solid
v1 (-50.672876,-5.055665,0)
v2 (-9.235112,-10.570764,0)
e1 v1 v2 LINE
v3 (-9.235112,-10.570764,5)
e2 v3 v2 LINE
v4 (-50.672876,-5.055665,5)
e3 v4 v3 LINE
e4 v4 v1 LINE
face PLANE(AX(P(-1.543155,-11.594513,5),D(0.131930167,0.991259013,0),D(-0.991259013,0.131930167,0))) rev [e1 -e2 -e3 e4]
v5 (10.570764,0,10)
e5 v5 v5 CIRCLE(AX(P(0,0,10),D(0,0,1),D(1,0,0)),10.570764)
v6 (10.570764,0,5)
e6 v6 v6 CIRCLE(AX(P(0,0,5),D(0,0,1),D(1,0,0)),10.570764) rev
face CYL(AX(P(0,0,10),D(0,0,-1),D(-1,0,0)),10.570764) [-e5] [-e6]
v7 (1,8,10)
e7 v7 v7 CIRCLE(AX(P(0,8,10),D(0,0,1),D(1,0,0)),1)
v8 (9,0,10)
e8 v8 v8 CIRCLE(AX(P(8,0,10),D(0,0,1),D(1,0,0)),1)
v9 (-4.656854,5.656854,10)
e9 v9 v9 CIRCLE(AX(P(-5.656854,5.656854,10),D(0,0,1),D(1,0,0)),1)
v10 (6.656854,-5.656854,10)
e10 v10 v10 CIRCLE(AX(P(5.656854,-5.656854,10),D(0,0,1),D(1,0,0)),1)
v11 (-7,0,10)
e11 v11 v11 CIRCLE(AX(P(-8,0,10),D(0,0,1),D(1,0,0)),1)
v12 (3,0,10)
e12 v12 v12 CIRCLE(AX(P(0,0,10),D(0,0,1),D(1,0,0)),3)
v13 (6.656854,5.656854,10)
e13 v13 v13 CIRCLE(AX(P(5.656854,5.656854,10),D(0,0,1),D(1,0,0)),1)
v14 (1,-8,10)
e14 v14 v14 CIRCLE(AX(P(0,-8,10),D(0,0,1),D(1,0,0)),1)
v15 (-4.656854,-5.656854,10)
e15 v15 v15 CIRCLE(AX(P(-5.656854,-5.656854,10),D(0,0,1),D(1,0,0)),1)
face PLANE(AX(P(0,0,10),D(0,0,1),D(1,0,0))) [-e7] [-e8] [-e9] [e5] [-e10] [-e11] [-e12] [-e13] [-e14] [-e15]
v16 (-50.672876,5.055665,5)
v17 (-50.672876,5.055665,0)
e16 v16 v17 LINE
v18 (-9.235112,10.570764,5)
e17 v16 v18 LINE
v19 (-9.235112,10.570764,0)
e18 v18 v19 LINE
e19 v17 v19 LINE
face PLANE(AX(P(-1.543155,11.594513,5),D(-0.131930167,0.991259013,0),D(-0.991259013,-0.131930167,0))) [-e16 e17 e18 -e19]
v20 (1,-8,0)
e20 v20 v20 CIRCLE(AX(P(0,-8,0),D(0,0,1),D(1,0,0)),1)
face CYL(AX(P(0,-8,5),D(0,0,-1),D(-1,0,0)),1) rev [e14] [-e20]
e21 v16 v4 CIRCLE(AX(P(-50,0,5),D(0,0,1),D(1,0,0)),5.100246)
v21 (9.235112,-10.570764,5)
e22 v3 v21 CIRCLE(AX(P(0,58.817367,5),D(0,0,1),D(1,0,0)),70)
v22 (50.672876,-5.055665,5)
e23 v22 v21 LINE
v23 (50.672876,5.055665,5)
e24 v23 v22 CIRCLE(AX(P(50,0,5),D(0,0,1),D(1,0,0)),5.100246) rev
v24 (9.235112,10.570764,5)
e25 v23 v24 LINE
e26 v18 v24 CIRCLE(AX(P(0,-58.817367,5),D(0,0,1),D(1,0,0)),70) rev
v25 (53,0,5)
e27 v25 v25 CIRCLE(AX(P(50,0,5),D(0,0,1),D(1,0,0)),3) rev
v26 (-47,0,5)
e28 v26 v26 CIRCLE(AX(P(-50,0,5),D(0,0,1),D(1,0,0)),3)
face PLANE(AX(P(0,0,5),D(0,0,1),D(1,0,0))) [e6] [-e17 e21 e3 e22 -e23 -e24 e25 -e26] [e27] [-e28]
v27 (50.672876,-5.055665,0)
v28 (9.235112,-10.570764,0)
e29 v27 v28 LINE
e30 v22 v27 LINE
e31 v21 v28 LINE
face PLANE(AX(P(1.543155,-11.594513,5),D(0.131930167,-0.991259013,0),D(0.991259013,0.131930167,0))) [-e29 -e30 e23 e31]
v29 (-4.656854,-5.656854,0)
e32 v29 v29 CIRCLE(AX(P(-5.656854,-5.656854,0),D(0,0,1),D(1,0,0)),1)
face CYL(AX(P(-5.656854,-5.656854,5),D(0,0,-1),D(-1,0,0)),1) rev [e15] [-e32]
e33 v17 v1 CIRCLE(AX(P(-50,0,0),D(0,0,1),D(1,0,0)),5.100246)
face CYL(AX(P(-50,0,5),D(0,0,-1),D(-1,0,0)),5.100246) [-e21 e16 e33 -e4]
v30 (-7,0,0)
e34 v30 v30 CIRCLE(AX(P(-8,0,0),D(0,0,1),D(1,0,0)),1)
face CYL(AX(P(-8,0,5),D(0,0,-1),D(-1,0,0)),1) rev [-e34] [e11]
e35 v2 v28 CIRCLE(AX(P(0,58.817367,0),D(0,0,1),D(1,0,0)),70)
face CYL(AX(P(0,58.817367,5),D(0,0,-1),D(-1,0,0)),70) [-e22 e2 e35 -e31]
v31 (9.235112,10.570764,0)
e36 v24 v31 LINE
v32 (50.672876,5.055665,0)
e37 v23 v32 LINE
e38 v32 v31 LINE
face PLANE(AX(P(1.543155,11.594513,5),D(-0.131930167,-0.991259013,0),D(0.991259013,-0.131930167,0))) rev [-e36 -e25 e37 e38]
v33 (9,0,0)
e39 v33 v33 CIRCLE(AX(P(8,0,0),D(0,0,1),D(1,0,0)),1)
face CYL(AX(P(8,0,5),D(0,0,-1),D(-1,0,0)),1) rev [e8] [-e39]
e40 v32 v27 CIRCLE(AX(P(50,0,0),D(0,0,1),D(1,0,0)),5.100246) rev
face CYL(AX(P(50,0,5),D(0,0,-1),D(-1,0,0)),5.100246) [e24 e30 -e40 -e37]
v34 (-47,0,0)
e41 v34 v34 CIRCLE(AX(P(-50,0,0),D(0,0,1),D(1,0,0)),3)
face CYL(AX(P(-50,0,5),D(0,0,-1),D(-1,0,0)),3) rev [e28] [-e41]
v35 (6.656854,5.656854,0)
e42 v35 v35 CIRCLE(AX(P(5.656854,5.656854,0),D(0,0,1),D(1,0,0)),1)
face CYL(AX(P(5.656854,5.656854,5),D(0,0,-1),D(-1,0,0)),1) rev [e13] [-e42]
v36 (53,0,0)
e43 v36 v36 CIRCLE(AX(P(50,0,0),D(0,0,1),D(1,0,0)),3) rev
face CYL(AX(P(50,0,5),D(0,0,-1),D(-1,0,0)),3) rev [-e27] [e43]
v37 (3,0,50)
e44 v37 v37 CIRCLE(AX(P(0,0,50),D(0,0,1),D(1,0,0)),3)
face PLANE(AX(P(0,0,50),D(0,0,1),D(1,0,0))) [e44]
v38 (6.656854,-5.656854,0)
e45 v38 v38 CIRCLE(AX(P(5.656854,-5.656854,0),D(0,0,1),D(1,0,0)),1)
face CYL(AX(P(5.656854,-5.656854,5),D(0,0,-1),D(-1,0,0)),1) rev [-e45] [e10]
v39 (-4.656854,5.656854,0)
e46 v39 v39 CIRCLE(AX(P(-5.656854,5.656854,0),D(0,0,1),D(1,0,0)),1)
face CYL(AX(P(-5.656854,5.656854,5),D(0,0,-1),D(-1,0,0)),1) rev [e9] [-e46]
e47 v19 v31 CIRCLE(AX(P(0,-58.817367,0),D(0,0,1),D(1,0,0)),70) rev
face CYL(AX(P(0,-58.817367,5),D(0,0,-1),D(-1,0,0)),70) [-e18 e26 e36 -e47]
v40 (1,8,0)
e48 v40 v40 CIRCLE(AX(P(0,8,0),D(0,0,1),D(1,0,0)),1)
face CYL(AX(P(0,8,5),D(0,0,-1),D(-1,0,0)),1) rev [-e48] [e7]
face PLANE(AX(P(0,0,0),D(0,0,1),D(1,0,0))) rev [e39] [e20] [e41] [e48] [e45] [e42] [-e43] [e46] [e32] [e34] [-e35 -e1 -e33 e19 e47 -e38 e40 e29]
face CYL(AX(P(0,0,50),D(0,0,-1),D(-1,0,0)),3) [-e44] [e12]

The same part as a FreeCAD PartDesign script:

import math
import FreeCAD as App
import Part
import Sketcher
from FreeCAD import Vector
Q = App.Units.Quantity

doc = App.newDocument("Part")
body = doc.addObject("PartDesign::Body", "Body")

# Sketch on XY plane
sketch1 = doc.addObject("Sketcher::SketchObject", "Sketch")
body.addObject(sketch1)
sketch1.AttachmentSupport = (doc.XY_Plane, [""])
sketch1.MapMode = "FlatFace"
sketch1.addGeometry(Part.LineSegment(Vector(-9.2, 10.6, 0), Vector(-50.7, 5.1, 0)), False)
sketch1.addGeometry(Part.ArcOfCircle(Part.Circle(Vector(-50, 0, 0), Vector(0, 0, 1), 5.1), math.radians(98), math.radians(262)), False)
sketch1.addGeometry(Part.LineSegment(Vector(-50.7, -5.1, 0), Vector(-9.2, -10.6, 0)), False)
sketch1.addGeometry(Part.ArcOfCircle(Part.Circle(Vector(0, 58.8, 0), Vector(0, 0, 1), 70), math.radians(-97.58), math.radians(-82.42)), False)
sketch1.addGeometry(Part.LineSegment(Vector(9.2, -10.6, 0), Vector(50.7, -5.1, 0)), False)
sketch1.addGeometry(Part.ArcOfCircle(Part.Circle(Vector(50, 0, 0), Vector(0, 0, 1), 5.1), math.radians(-82), math.radians(82)), False)
sketch1.addGeometry(Part.LineSegment(Vector(50.7, 5.1, 0), Vector(9.2, 10.6, 0)), False)
sketch1.addGeometry(Part.ArcOfCircle(Part.Circle(Vector(0, -58.8, 0), Vector(0, 0, 1), 70), math.radians(82.42), math.radians(97.58)), False)
sketch1.addGeometry(Part.Circle(Vector(5.7, -5.7, 0), Vector(0, 0, 1), 1), False)
sketch1.addGeometry(Part.Circle(Vector(0, -8, 0), Vector(0, 0, 1), 1), False)
sketch1.addGeometry(Part.Circle(Vector(-5.7, -5.7, 0), Vector(0, 0, 1), 1), False)
sketch1.addGeometry(Part.Circle(Vector(50, 0, 0), Vector(0, 0, 1), 3), False)
sketch1.addGeometry(Part.Circle(Vector(8, 0, 0), Vector(0, 0, 1), 1), False)
sketch1.addGeometry(Part.Circle(Vector(5.7, 5.7, 0), Vector(0, 0, 1), 1), False)
sketch1.addGeometry(Part.Circle(Vector(-8, 0, 0), Vector(0, 0, 1), 1), False)
sketch1.addGeometry(Part.Circle(Vector(-50, 0, 0), Vector(0, 0, 1), 3), False)
sketch1.addGeometry(Part.Circle(Vector(-5.7, 5.7, 0), Vector(0, 0, 1), 1), False)
sketch1.addGeometry(Part.Circle(Vector(0, 8, 0), Vector(0, 0, 1), 1), False)
sketch1.addConstraint(Sketcher.Constraint("Tangent", 0, 2, 1, 1))
sketch1.addConstraint(Sketcher.Constraint("Tangent", 1, 2, 2, 1))
sketch1.addConstraint(Sketcher.Constraint("Tangent", 2, 2, 3, 1))
sketch1.addConstraint(Sketcher.Constraint("Tangent", 3, 2, 4, 1))
sketch1.addConstraint(Sketcher.Constraint("Tangent", 4, 2, 5, 1))
sketch1.addConstraint(Sketcher.Constraint("Tangent", 5, 2, 6, 1))
sketch1.addConstraint(Sketcher.Constraint("Tangent", 6, 2, 7, 1))
sketch1.addConstraint(Sketcher.Constraint("Tangent", 7, 2, 0, 1))
sketch1.addConstraint(Sketcher.Constraint("Coincident", 11, 3, 5, 3))
sketch1.addConstraint(Sketcher.Constraint("Coincident", 15, 3, 1, 3))
sketch1.addConstraint(Sketcher.Constraint("Equal", 1, 5))
sketch1.addConstraint(Sketcher.Constraint("Equal", 3, 7))
sketch1.addConstraint(Sketcher.Constraint("Equal", 8, 9))
sketch1.addConstraint(Sketcher.Constraint("Equal", 9, 10))
sketch1.addConstraint(Sketcher.Constraint("Equal", 10, 12))
sketch1.addConstraint(Sketcher.Constraint("Equal", 12, 13))
sketch1.addConstraint(Sketcher.Constraint("Equal", 13, 14))
sketch1.addConstraint(Sketcher.Constraint("Equal", 11, 15))
sketch1.addConstraint(Sketcher.Constraint("Equal", 14, 16))
sketch1.addConstraint(Sketcher.Constraint("Equal", 16, 17))
sketch1.addConstraint(Sketcher.Constraint("Symmetric", 1, 3, 5, 3, -1, 1))
sketch1.addConstraint(Sketcher.Constraint("Symmetric", 3, 3, 7, 3, -1, 1))
sketch1.addConstraint(Sketcher.Constraint("Symmetric", 10, 3, 13, 3, -1, 1))
sketch1.addConstraint(Sketcher.Constraint("Symmetric", 12, 3, 14, 3, -1, 1))
sketch1.addConstraint(Sketcher.Constraint("Symmetric", 8, 3, 16, 3, -1, 1))
sketch1.addConstraint(Sketcher.Constraint("Symmetric", 9, 3, 17, 3, -1, 1))
sketch1.addConstraint(Sketcher.Constraint("Symmetric", 8, 3, 10, 3, -2))
sketch1.addConstraint(Sketcher.Constraint("Symmetric", 2, 2, 3, 2, -2))
sketch1.addConstraint(Sketcher.Constraint("PointOnObject", 9, 3, -2))
sketch1.addConstraint(Sketcher.Constraint("PointOnObject", 12, 3, -1))
sketch1.addConstraint(Sketcher.Constraint("Diameter", 8, Q("2 mm")))
sketch1.addConstraint(Sketcher.Constraint("Diameter", 11, Q("6 mm")))
sketch1.addConstraint(Sketcher.Constraint("Radius", 3, Q("70 mm")))
sketch1.addConstraint(Sketcher.Constraint("DistanceX", 1, 3, -1, 1, Q("50 mm")))
sketch1.addConstraint(Sketcher.Constraint("DistanceY", 9, 3, -1, 1, Q("8 mm")))
sketch1.addConstraint(Sketcher.Constraint("DistanceX", -1, 1, 12, 3, Q("8 mm")))
sketch1.addConstraint(Sketcher.Constraint("Radius", 1, Q("5.100246 mm")))
sketch1.addConstraint(Sketcher.Constraint("DistanceY", 3, 2, 4, 2, Q("5.515099 mm")))
sketch1.addConstraint(Sketcher.Constraint("DistanceY", 8, 3, 3, 3, Q("64.474221 mm")))
sketch1.addConstraint(Sketcher.Constraint("DistanceX", 10, 3, 8, 3, Q("11.313708 mm")))
pad1 = doc.addObject("PartDesign::Pad", "Pad")
body.addObject(pad1)
pad1.Profile = sketch1
pad1.Length = 5

# Sketch on XY plane
sketch2 = doc.addObject("Sketcher::SketchObject", "Sketch001")
body.addObject(sketch2)
sketch2.AttachmentSupport = (doc.XY_Plane, [""])
sketch2.MapMode = "FlatFace"
sketch2.addGeometry(Part.Circle(Vector(0, 0, 0), Vector(0, 0, 1), 10.6), False)
sketch2.addGeometry(Part.Circle(Vector(-5.7, -5.7, 0), Vector(0, 0, 1), 1), False)
sketch2.addGeometry(Part.Circle(Vector(0, -8, 0), Vector(0, 0, 1), 1), False)
sketch2.addGeometry(Part.Circle(Vector(5.7, -5.7, 0), Vector(0, 0, 1), 1), False)
sketch2.addGeometry(Part.Circle(Vector(-8, 0, 0), Vector(0, 0, 1), 1), False)
sketch2.addGeometry(Part.Circle(Vector(-5.7, 5.7, 0), Vector(0, 0, 1), 1), False)
sketch2.addGeometry(Part.Circle(Vector(0, 0, 0), Vector(0, 0, 1), 3), False)
sketch2.addGeometry(Part.Circle(Vector(8, 0, 0), Vector(0, 0, 1), 1), False)
sketch2.addGeometry(Part.Circle(Vector(0, 8, 0), Vector(0, 0, 1), 1), False)
sketch2.addGeometry(Part.Circle(Vector(5.7, 5.7, 0), Vector(0, 0, 1), 1), False)
sketch2.addConstraint(Sketcher.Constraint("Coincident", 0, 3, -1, 1))
sketch2.addConstraint(Sketcher.Constraint("Coincident", 6, 3, -1, 1))
sketch2.addConstraint(Sketcher.Constraint("Equal", 1, 2))
sketch2.addConstraint(Sketcher.Constraint("Equal", 2, 3))
sketch2.addConstraint(Sketcher.Constraint("Equal", 3, 4))
sketch2.addConstraint(Sketcher.Constraint("Equal", 4, 5))
sketch2.addConstraint(Sketcher.Constraint("Equal", 5, 7))
sketch2.addConstraint(Sketcher.Constraint("Equal", 7, 8))
sketch2.addConstraint(Sketcher.Constraint("Equal", 8, 9))
sketch2.addConstraint(Sketcher.Constraint("Symmetric", 3, 3, 5, 3, -1, 1))
sketch2.addConstraint(Sketcher.Constraint("Symmetric", 4, 3, 7, 3, -1, 1))
sketch2.addConstraint(Sketcher.Constraint("Symmetric", 2, 3, 8, 3, -1, 1))
sketch2.addConstraint(Sketcher.Constraint("Symmetric", 1, 3, 9, 3, -1, 1))
sketch2.addConstraint(Sketcher.Constraint("Symmetric", 1, 3, 3, 3, -2))
sketch2.addConstraint(Sketcher.Constraint("PointOnObject", 2, 3, -2))
sketch2.addConstraint(Sketcher.Constraint("PointOnObject", 4, 3, -1))
sketch2.addConstraint(Sketcher.Constraint("Diameter", 1, Q("2 mm")))
sketch2.addConstraint(Sketcher.Constraint("Diameter", 6, Q("6 mm")))
sketch2.addConstraint(Sketcher.Constraint("DistanceY", 2, 3, -1, 1, Q("8 mm")))
sketch2.addConstraint(Sketcher.Constraint("DistanceX", 4, 3, -1, 1, Q("8 mm")))
sketch2.addConstraint(Sketcher.Constraint("Diameter", 0, Q("21.141528 mm")))
sketch2.addConstraint(Sketcher.Constraint("DistanceX", 1, 3, 3, 3, Q("11.313708 mm")))
sketch2.addConstraint(Sketcher.Constraint("DistanceY", 1, 3, 5, 3, Q("11.313708 mm")))
pad2 = doc.addObject("PartDesign::Pad", "Pad001")
body.addObject(pad2)
pad2.Profile = sketch2
pad2.Length = 10

# Sketch on XY plane
sketch3 = doc.addObject("Sketcher::SketchObject", "Sketch002")
body.addObject(sketch3)
sketch3.AttachmentSupport = (doc.XY_Plane, [""])
sketch3.MapMode = "FlatFace"
sketch3.addGeometry(Part.Circle(Vector(0, 0, 0), Vector(0, 0, 1), 3), False)
sketch3.addConstraint(Sketcher.Constraint("Coincident", 0, 3, -1, 1))
sketch3.addConstraint(Sketcher.Constraint("Diameter", 0, Q("6 mm")))
pad3 = doc.addObject("PartDesign::Pad", "Pad002")
body.addObject(pad3)
pad3.Profile = sketch3
pad3.Length = 50

doc.recompute()
